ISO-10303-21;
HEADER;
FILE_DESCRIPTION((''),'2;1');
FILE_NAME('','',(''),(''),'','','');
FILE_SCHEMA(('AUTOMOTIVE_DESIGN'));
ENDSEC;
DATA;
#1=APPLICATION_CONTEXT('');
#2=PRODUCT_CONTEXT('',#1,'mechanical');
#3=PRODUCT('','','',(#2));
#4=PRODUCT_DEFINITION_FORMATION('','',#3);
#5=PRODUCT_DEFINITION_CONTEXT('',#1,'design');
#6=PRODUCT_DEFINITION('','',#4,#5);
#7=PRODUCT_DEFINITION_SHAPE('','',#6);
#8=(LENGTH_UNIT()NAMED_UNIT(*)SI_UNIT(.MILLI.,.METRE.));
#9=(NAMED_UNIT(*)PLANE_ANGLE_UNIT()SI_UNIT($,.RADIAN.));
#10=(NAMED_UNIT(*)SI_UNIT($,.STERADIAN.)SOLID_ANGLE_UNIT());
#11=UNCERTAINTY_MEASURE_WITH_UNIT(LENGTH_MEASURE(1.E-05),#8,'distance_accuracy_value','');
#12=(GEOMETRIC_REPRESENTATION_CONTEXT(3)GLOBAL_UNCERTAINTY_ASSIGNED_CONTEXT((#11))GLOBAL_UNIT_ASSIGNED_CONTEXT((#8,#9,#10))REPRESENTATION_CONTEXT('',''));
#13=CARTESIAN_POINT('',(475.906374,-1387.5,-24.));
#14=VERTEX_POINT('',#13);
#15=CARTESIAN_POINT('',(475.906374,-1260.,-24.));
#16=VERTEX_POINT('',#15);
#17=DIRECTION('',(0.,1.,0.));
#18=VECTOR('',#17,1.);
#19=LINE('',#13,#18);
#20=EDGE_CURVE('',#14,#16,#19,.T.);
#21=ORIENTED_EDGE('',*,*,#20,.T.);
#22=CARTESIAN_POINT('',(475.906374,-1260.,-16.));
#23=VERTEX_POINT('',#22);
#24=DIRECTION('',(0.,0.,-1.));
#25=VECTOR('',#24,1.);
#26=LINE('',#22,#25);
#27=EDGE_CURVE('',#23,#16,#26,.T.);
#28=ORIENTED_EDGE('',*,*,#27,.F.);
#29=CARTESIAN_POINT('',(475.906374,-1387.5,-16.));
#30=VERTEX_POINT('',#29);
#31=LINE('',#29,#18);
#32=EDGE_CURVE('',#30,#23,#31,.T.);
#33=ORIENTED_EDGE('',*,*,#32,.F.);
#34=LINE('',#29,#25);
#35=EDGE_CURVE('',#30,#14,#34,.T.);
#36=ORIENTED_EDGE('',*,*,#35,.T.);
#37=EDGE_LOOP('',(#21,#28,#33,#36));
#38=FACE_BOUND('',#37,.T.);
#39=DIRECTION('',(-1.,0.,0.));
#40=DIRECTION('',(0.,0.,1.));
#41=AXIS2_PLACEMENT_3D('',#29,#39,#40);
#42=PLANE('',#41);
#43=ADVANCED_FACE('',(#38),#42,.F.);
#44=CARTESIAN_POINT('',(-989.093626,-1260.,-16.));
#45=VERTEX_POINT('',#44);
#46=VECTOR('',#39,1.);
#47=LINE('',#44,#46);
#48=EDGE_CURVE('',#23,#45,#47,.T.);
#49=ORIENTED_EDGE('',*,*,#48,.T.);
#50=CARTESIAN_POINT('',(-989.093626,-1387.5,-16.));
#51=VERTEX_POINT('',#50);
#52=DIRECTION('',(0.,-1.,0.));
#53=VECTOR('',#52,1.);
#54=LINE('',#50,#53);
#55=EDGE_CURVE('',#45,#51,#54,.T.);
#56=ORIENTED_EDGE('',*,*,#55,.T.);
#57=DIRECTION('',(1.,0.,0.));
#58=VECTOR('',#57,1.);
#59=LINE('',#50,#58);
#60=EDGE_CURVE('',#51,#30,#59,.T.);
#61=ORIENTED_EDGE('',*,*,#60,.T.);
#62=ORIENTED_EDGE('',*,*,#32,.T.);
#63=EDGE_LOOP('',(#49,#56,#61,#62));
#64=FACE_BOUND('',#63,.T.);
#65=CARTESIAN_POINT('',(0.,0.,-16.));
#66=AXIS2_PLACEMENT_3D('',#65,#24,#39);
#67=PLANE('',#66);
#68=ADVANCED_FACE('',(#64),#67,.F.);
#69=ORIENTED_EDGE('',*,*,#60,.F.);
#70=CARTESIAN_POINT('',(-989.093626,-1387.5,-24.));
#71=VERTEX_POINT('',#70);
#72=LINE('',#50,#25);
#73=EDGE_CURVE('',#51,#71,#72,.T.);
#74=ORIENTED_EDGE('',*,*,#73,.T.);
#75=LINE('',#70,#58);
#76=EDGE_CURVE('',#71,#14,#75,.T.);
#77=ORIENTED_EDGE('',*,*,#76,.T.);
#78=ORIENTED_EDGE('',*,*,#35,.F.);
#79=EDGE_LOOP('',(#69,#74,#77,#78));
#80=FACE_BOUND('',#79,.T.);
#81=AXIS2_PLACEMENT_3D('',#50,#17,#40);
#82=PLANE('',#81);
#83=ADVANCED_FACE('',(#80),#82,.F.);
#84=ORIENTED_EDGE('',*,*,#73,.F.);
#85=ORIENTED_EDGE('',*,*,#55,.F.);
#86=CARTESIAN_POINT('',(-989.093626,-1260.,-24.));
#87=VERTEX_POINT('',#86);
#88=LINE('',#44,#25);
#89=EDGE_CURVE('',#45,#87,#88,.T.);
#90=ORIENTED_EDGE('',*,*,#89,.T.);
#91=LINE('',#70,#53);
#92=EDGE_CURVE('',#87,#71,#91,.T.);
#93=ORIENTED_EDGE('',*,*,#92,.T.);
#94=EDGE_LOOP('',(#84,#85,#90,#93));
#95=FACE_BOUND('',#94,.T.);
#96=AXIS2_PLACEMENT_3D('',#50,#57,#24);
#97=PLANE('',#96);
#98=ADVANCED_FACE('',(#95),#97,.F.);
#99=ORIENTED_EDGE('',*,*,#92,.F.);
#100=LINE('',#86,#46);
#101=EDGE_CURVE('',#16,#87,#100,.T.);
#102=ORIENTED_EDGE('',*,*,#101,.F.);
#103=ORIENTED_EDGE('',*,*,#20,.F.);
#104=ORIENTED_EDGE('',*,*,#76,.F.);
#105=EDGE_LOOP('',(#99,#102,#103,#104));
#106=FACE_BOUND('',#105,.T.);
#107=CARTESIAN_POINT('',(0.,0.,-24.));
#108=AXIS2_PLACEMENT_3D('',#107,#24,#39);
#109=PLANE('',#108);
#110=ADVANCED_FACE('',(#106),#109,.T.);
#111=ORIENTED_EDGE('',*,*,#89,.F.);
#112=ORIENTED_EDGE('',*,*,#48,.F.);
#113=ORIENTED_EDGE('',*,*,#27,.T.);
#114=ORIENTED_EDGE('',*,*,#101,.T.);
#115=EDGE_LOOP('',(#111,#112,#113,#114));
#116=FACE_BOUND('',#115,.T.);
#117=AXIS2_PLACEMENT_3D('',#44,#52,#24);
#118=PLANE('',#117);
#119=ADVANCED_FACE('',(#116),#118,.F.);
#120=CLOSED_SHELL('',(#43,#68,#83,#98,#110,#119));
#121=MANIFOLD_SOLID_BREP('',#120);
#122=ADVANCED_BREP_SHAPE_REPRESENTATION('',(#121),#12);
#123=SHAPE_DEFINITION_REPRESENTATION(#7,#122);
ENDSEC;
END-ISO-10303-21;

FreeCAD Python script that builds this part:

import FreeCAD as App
import Part
import Sketcher
Q = App.Units.Quantity

doc = App.newDocument("Part")
body = doc.addObject("PartDesign::Body", "Body")

sketch1 = doc.addObject("Sketcher::SketchObject", "Sketch")
body.addObject(sketch1)
sketch1.AttachmentSupport = (doc.XY_Plane, [""])
sketch1.MapMode = "FlatFace"
sketch1.AttachmentOffset = App.Placement(App.Vector(0, 0, -20), App.Rotation())
sketch1.addGeometry(Part.LineSegment(App.Vector(-989.093626, -1260, 0), App.Vector(-989.093626, -1387.5, 0)), False)
sketch1.addGeometry(Part.LineSegment(App.Vector(-989.093626, -1387.5, 0), App.Vector(475.906374, -1387.5, 0)), False)
sketch1.addGeometry(Part.LineSegment(App.Vector(475.906374, -1387.5, 0), App.Vector(475.906374, -1260, 0)), False)
sketch1.addGeometry(Part.LineSegment(App.Vector(475.906374, -1260, 0), App.Vector(-989.093626, -1260, 0)), False)
sketch1.addConstraint(Sketcher.Constraint("Coincident", 0, 2, 1, 1))
sketch1.addConstraint(Sketcher.Constraint("Coincident", 1, 2, 2, 1))
sketch1.addConstraint(Sketcher.Constraint("Coincident", 2, 2, 3, 1))
sketch1.addConstraint(Sketcher.Constraint("Coincident", 3, 2, 0, 1))
sketch1.addConstraint(Sketcher.Constraint("Vertical", 0))
sketch1.addConstraint(Sketcher.Constraint("Horizontal", 1))
sketch1.addConstraint(Sketcher.Constraint("Vertical", 2))
sketch1.addConstraint(Sketcher.Constraint("Horizontal", 3))
sketch1.addConstraint(Sketcher.Constraint("DistanceX", 1, 1, 1, 2, Q("1465 mm")))
sketch1.addConstraint(Sketcher.Constraint("DistanceY", 0, 2, 0, 1, Q("127.5 mm")))
sketch1.addConstraint(Sketcher.Constraint("DistanceY", 2, 2, -1, 1, Q("1260 mm")))
sketch1.addConstraint(Sketcher.Constraint("DistanceX", 0, 2, -1, 1, Q("989.093626 mm")))
pad1 = doc.addObject("PartDesign::Pad", "Pad")
body.addObject(pad1)
pad1.Profile = sketch1
pad1.Length = 8
pad1.Midplane = True

doc.recompute()
